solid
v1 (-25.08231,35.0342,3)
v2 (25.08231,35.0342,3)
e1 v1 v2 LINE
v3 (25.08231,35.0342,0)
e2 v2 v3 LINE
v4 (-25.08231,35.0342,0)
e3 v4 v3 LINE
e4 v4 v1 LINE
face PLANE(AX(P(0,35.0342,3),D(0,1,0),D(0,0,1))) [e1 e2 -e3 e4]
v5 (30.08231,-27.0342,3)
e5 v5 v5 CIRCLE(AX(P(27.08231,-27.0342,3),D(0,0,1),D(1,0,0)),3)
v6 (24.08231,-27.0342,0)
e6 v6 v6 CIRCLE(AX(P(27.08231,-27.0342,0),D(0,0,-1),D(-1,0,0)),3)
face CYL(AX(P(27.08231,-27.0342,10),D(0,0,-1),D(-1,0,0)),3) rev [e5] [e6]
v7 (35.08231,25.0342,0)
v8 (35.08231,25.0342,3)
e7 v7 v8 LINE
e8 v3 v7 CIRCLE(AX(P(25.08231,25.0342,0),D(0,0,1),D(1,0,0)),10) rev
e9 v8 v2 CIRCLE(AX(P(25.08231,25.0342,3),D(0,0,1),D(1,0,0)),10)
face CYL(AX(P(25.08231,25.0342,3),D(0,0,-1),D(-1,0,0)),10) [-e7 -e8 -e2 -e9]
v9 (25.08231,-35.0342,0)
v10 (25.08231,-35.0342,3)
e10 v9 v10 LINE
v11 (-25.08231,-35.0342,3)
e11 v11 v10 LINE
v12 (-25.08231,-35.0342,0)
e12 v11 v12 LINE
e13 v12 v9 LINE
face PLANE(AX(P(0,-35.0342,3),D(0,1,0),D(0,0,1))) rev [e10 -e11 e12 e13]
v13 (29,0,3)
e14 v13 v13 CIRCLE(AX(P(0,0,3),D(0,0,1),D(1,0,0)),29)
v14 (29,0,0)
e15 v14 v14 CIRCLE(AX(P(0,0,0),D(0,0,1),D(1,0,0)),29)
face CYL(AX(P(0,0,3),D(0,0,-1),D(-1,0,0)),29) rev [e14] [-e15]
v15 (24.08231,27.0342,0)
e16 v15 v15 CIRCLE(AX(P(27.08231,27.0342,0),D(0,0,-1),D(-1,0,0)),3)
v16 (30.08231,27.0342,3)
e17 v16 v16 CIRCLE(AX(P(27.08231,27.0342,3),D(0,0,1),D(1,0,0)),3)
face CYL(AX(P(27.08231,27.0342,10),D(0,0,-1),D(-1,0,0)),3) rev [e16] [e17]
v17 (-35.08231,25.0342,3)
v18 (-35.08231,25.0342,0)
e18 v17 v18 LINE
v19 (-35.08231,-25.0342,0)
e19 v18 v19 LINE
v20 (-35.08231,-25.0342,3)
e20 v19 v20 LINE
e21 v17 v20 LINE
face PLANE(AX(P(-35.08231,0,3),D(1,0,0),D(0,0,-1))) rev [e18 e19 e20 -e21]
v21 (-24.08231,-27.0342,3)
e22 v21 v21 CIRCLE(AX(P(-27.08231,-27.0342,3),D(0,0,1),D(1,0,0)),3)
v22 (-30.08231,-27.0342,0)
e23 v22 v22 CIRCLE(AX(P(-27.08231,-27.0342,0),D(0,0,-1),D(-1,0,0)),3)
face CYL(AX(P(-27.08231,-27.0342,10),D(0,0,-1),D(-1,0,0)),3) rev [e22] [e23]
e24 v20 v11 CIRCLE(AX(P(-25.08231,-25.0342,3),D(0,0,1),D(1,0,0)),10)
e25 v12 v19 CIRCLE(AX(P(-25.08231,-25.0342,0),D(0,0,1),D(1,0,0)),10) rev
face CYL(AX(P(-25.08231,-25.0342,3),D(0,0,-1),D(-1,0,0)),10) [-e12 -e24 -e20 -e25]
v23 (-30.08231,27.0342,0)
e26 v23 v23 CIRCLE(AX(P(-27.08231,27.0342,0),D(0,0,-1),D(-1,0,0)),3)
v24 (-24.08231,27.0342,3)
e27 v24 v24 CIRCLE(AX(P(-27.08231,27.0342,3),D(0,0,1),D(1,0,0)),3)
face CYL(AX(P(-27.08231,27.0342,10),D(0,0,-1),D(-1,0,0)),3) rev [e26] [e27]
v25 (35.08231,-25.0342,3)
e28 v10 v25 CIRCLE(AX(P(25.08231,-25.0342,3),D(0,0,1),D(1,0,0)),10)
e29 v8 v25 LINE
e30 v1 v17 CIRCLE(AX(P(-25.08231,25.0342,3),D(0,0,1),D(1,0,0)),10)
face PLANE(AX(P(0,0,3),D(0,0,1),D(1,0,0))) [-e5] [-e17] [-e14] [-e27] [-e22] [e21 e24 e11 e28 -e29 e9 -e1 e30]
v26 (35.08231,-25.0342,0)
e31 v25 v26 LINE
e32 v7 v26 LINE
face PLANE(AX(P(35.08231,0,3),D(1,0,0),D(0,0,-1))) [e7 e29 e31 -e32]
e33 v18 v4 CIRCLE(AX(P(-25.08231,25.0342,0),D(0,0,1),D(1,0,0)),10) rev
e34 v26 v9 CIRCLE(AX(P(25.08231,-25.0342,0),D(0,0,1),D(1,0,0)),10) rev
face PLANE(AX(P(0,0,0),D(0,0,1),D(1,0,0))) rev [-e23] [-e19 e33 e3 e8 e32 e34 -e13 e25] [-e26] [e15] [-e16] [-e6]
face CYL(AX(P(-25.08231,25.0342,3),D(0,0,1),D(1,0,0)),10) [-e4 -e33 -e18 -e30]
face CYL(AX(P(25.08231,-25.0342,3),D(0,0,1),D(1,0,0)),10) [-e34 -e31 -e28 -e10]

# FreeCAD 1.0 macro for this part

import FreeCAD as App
import Part
import Sketcher
from FreeCAD import Vector


def edges_at(feature, points):
    """Names of the edges that pass closest to the given points."""
    edges = feature.Shape.Edges
    near = lambda p: min(range(len(edges)), key=lambda i: edges[i].distToShape(Part.Vertex(*p))[0])
    return sorted({f"Edge{near(p) + 1}" for p in points})

doc = App.newDocument("Part")
body = doc.addObject("PartDesign::Body", "Body")

# Sketch on XY plane
sketch1 = body.newObject("Sketcher::SketchObject", "Sketch")
sketch1.AttachmentSupport = (doc.getObject("XY_Plane"), [""])
sketch1.MapMode = "FlatFace"
sketch1.addGeometry(Part.LineSegment(Vector(-35, 35, 0), Vector(-35, -35, 0)), False)
sketch1.addGeometry(Part.LineSegment(Vector(-35, -35, 0), Vector(35, -35, 0)), False)
sketch1.addGeometry(Part.LineSegment(Vector(35, -35, 0), Vector(35, 35, 0)), False)
sketch1.addGeometry(Part.LineSegment(Vector(35, 35, 0), Vector(-35, 35, 0)), False)
sketch1.addGeometry(Part.Circle(Vector(0, 0, 0), Vector(0, 0, 1), 29), False)
sketch1.addConstraint(Sketcher.Constraint("Coincident", 0, 2, 1, 1))
sketch1.addConstraint(Sketcher.Constraint("Coincident", 1, 2, 2, 1))
sketch1.addConstraint(Sketcher.Constraint("Coincident", 2, 2, 3, 1))
sketch1.addConstraint(Sketcher.Constraint("Coincident", 3, 2, 0, 1))
sketch1.addConstraint(Sketcher.Constraint("Vertical", 0))
sketch1.addConstraint(Sketcher.Constraint("Horizontal", 1))
sketch1.addConstraint(Sketcher.Constraint("Vertical", 2))
sketch1.addConstraint(Sketcher.Constraint("Horizontal", 3))
sketch1.addConstraint(Sketcher.Constraint("Coincident", 4, 3, -1, 1))
sketch1.addConstraint(Sketcher.Constraint("Symmetric", 0, 2, 2, 2, -1, 1))
sketch1.addConstraint(Sketcher.Constraint("Diameter", 4, 58.0))
sketch1.addConstraint(Sketcher.Constraint("DistanceY", 0, 2, 0, 1, 70.068399))
sketch1.addConstraint(Sketcher.Constraint("DistanceX", 1, 1, 1, 2, 70.16462))
pad1 = body.newObject("PartDesign::Pad", "Pad")
pad1.Profile = sketch1
pad1.Length = 3
doc.recompute()

fillet = body.newObject("PartDesign::Fillet", "Fillet")
fillet.Base = (pad1, edges_at(pad1, [
    (35.082, -35.034, 1.5),
    (-35.082, -35.034, 1.5),
    (-35.082, 35.034, 1.5),
    (35.082, 35.034, 1.5),
]))
fillet.Radius = 10

# Sketch on XY plane
sketch2 = body.newObject("Sketcher::SketchObject", "Sketch001")
sketch2.AttachmentSupport = (doc.getObject("XY_Plane"), [""])
sketch2.MapMode = "FlatFace"
sketch2.addGeometry(Part.Circle(Vector(27.1, 27, 0), Vector(0, 0, 1), 3), False)
sketch2.addGeometry(Part.Circle(Vector(-27.1, 27, 0), Vector(0, 0, 1), 3), False)
sketch2.addGeometry(Part.Circle(Vector(27.1, -27, 0), Vector(0, 0, 1), 3), False)
sketch2.addGeometry(Part.Circle(Vector(-27.1, -27, 0), Vector(0, 0, 1), 3), False)
sketch2.addConstraint(Sketcher.Constraint("Equal", 0, 1))
sketch2.addConstraint(Sketcher.Constraint("Equal", 1, 2))
sketch2.addConstraint(Sketcher.Constraint("Equal", 2, 3))
sketch2.addConstraint(Sketcher.Constraint("Symmetric", 1, 3, 2, 3, -1, 1))
sketch2.addConstraint(Sketcher.Constraint("Symmetric", 0, 3, 3, 3, -1, 1))
sketch2.addConstraint(Sketcher.Constraint("Symmetric", 0, 3, 1, 3, -2))
sketch2.addConstraint(Sketcher.Constraint("Diameter", 0, 6.0))
sketch2.addConstraint(Sketcher.Constraint("DistanceY", -1, 1, 0, 3, 27.0342))
sketch2.addConstraint(Sketcher.Constraint("DistanceX", -1, 1, 0, 3, 27.08231))
pocket1 = body.newObject("PartDesign::Pocket", "Pocket")
pocket1.Profile = sketch2
pocket1.Length = 10
pocket1.Reversed = True

doc.recompute()
